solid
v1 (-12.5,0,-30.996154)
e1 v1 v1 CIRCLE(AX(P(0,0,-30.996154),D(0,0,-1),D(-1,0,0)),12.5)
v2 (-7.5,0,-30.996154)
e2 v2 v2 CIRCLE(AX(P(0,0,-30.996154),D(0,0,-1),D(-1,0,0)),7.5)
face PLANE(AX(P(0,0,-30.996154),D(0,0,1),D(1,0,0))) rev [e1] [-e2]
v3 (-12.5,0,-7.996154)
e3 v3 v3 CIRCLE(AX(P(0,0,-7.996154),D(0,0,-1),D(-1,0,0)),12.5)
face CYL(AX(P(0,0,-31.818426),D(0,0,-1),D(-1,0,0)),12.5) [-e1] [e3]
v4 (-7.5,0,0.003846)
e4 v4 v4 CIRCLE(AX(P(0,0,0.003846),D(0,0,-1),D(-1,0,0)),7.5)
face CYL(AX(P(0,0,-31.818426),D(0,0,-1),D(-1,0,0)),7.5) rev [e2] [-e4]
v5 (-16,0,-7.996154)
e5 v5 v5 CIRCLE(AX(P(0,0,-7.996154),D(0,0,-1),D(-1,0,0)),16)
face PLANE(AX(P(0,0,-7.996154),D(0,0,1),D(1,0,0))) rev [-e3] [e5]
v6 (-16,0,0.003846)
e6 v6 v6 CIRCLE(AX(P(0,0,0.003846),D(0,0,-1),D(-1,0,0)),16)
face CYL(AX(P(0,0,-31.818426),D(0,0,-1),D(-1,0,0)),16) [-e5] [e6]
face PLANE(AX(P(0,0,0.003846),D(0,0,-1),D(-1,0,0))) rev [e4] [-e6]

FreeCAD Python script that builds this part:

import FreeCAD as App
import Part
import Sketcher

V = App.Vector


def add_polygon(sketch, points):
    """Adds a closed chain of lines whose ends are joined by coincident constraints."""
    first, n = sketch.GeometryCount, len(points)
    for a, b in zip(points, points[1:] + points[:1]):
        sketch.addGeometry(Part.LineSegment(App.Vector(*a, 0), App.Vector(*b, 0)), False)
    for i in range(n):
        sketch.addConstraint(Sketcher.Constraint("Coincident", first + i, 2, first + (i + 1) % n, 1))

doc = App.newDocument("Part")
body = doc.addObject("PartDesign::Body", "Body")

# Sketch on XZ plane
sketch1 = body.newObject("Sketcher::SketchObject", "Sketch")
sketch1.AttachmentSupport = (doc.getObject("XZ_Plane"), [""])
sketch1.MapMode = "FlatFace"
add_polygon(sketch1, [(-16, 0), (-7.5, 0), (-7.5, -31), (-12.5, -31), (-12.5, -8), (-16, -8)])  # lines 0-5
add_polygon(sketch1, [(7.5, -31), (7.5, 0), (16, 0), (16, -8), (12.5, -8), (12.5, -31)])  # lines 6-11
sketch1.addConstraint([
    Sketcher.Constraint("Horizontal", 0),
    Sketcher.Constraint("Vertical", 1),
    Sketcher.Constraint("Horizontal", 2),
    Sketcher.Constraint("Vertical", 3),
    Sketcher.Constraint("Horizontal", 4),
    Sketcher.Constraint("Vertical", 5),
    Sketcher.Constraint("Vertical", 6),
    Sketcher.Constraint("Horizontal", 7),
    Sketcher.Constraint("Vertical", 8),
    Sketcher.Constraint("Horizontal", 9),
    Sketcher.Constraint("Vertical", 10),
    Sketcher.Constraint("Horizontal", 11),
    Sketcher.Constraint("Symmetric", 0, 2, 6, 2, -2),
    Sketcher.Constraint("Symmetric", 4, 2, 8, 2, -2),
    Sketcher.Constraint("Symmetric", 2, 2, 10, 2, -2),
    Sketcher.Constraint("DistanceX", 2, 2, 2, 1, 5.0),
    Sketcher.Constraint("DistanceY", 1, 2, 1, 1, 31.0),
    Sketcher.Constraint("DistanceY", 3, 1, 3, 2, 23.0),
    Sketcher.Constraint("DistanceX", 0, 1, 0, 2, 8.5),
    Sketcher.Constraint("DistanceX", 4, 2, -1, 1, 16.0),
    Sketcher.Constraint("DistanceY", -1, 1, 0, 2, 0.003846),
])
revolution = body.newObject("PartDesign::Revolution", "Revolution")
revolution.Profile = sketch1
revolution.ReferenceAxis = (sketch1, ["V_Axis"])
revolution.Angle = 360

doc.recompute()
